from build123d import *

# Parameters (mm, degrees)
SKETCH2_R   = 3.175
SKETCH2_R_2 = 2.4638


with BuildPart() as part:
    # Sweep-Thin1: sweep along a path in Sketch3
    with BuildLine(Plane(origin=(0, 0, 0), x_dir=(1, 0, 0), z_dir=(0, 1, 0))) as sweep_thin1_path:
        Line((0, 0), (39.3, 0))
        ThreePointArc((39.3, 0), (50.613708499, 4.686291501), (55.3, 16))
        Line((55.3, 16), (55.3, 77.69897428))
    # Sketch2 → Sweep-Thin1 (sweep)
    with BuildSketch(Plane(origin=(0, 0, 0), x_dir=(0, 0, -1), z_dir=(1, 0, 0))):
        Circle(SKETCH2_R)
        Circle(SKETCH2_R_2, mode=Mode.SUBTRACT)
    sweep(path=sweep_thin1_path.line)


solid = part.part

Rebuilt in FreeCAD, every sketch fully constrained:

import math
import FreeCAD as App
import Part
import Sketcher

V = App.Vector
Q = App.Units.Quantity

doc = App.newDocument("Part")
body = doc.addObject("PartDesign::Body", "Body")

sketch1 = body.newObject("Sketcher::SketchObject", "Sketch")
sketch1.AttachmentSupport = (doc.getObject("YZ_Plane"), [""])
sketch1.MapMode = "FlatFace"
sketch1.addGeometry(Part.Circle(V(0, 0, 0), V(0, 0, 1), 3.2), False)
sketch1.addGeometry(Part.Circle(V(0, 0, 0), V(0, 0, 1), 2.5), False)
sketch1.addConstraint(Sketcher.Constraint("Coincident", 0, 3, -1, 1))
sketch1.addConstraint(Sketcher.Constraint("Coincident", 1, 3, -1, 1))
sketch1.addConstraint(Sketcher.Constraint("Diameter", 0, Q("6.35 mm")))
sketch1.addConstraint(Sketcher.Constraint("Diameter", 1, Q("4.9276 mm")))

sketch2 = body.newObject("Sketcher::SketchObject", "Sketch001")
sketch2.AttachmentSupport = (doc.getObject("XZ_Plane"), [""])
sketch2.MapMode = "FlatFace"
sketch2.addGeometry(Part.LineSegment(V(0, 0, 0), V(39, 0, 0)), False)
sketch2.addGeometry(Part.ArcOfCircle(Part.Circle(V(39, -16, 0), V(0, 0, 1), 16), math.radians(0), math.radians(90)), False)
sketch2.addGeometry(Part.LineSegment(V(55, -16, 0), V(55, -78, 0)), False)
sketch2.addConstraint(Sketcher.Constraint("Tangent", 0, 2, 1, 2))
sketch2.addConstraint(Sketcher.Constraint("Tangent", 1, 1, 2, 1))
sketch2.addConstraint(Sketcher.Constraint("Horizontal", 0))
sketch2.addConstraint(Sketcher.Constraint("Vertical", 2))
sketch2.addConstraint(Sketcher.Constraint("Coincident", 0, 1, -1, 1))
sketch2.addConstraint(Sketcher.Constraint("Radius", 1, Q("16 mm")))
sketch2.addConstraint(Sketcher.Constraint("DistanceX", 0, 1, 0, 2, Q("39.3 mm")))
sketch2.addConstraint(Sketcher.Constraint("DistanceY", 2, 2, 2, 1, Q("61.698974 mm")))
doc.recompute()

additivepipe = body.newObject("PartDesign::AdditivePipe", "AdditivePipe")
additivepipe.Profile = sketch1
additivepipe.Spine = (sketch2, ["Edge1", "Edge2", "Edge3"])

doc.recompute()
